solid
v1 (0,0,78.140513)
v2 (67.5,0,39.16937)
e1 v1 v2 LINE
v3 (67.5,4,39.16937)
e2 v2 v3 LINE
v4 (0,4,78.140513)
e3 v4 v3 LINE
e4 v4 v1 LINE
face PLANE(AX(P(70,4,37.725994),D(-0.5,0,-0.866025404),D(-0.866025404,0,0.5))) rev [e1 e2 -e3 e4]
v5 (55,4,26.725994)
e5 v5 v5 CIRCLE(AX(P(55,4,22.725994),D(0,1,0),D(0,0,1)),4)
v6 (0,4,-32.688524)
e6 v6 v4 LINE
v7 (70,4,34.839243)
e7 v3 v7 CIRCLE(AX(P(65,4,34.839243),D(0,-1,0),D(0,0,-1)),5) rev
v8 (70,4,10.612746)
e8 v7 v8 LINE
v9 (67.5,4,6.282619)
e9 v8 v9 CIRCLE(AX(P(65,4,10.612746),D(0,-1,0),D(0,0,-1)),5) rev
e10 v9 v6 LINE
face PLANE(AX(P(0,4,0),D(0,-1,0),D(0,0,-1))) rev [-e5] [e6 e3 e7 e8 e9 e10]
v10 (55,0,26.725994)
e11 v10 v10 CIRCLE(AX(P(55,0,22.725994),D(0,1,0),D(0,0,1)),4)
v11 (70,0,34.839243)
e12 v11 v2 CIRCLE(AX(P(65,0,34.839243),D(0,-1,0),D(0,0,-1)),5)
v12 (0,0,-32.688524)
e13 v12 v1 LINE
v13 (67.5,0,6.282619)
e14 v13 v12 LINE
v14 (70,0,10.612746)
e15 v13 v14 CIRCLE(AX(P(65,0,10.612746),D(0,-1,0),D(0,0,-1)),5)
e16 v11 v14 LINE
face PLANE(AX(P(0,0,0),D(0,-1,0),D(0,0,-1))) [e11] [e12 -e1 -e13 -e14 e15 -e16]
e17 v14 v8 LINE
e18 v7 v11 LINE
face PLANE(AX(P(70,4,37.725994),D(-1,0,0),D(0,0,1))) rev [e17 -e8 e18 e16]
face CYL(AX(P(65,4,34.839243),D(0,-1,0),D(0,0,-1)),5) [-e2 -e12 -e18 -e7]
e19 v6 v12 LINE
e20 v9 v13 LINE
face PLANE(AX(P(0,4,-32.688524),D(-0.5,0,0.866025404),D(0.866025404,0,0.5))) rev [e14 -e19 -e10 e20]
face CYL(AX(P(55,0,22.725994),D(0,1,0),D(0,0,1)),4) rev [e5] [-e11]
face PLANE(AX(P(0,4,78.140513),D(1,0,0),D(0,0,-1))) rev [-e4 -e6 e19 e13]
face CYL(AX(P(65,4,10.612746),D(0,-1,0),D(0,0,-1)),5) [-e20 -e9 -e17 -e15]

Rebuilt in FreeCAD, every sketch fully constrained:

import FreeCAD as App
import Part
import Sketcher

V = App.Vector
Q = App.Units.Quantity


def edges_at(feature, points):
    """Names of the edges that pass closest to the given points."""
    edges = feature.Shape.Edges
    near = lambda p: min(range(len(edges)), key=lambda i: edges[i].distToShape(Part.Vertex(*p))[0])
    return sorted({f"Edge{near(p) + 1}" for p in points})

doc = App.newDocument("Part")
body = doc.addObject("PartDesign::Body", "Body")

# Sketch on XZ plane
sketch1 = body.newObject("Sketcher::SketchObject", "Sketch")
sketch1.AttachmentSupport = (doc.getObject("XZ_Plane"), [""])
sketch1.MapMode = "FlatFace"
sketch1.addGeometry(Part.LineSegment(V(70, 38, 0), V(70, 8, 0)), False)
sketch1.addGeometry(Part.LineSegment(V(70, 8, 0), V(0, -33, 0)), False)
sketch1.addGeometry(Part.LineSegment(V(0, -33, 0), V(0, 78, 0)), False)
sketch1.addGeometry(Part.LineSegment(V(0, 78, 0), V(70, 38, 0)), False)
sketch1.addConstraint(Sketcher.Constraint("Coincident", 0, 2, 1, 1))
sketch1.addConstraint(Sketcher.Constraint("Coincident", 1, 2, 2, 1))
sketch1.addConstraint(Sketcher.Constraint("Coincident", 2, 2, 3, 1))
sketch1.addConstraint(Sketcher.Constraint("Coincident", 3, 2, 0, 1))
sketch1.addConstraint(Sketcher.Constraint("Vertical", 0))
sketch1.addConstraint(Sketcher.Constraint("Vertical", 2))
sketch1.addConstraint(Sketcher.Constraint("PointOnObject", 1, 2, -2))
sketch1.addConstraint(Sketcher.Constraint("Equal", 1, 3))
sketch1.addConstraint(Sketcher.Constraint("DistanceY", 0, 2, 0, 1, 30.0))
sketch1.addConstraint(Sketcher.Constraint("Angle", 1, Q("-150 deg")))
sketch1.addConstraint(Sketcher.Constraint("DistanceX", -1, 1, 0, 2, 70.0))
sketch1.addConstraint(Sketcher.Constraint("DistanceY", -1, 1, 0, 2, 7.725994))
pad1 = body.newObject("PartDesign::Pad", "Pad")
pad1.Profile = sketch1
pad1.Length = 4
pad1.Reversed = True

# Sketch on XZ plane
sketch2 = body.newObject("Sketcher::SketchObject", "Sketch001")
sketch2.AttachmentSupport = (doc.getObject("XZ_Plane"), [""])
sketch2.MapMode = "FlatFace"
sketch2.AttachmentOffset = App.Placement(V(0, 0, -4), App.Rotation())
sketch2.addGeometry(Part.Circle(V(55, 22.7, 0), V(0, 0, 1), 4), False)
sketch2.addConstraint(Sketcher.Constraint("Diameter", 0, 8.0))
sketch2.addConstraint(Sketcher.Constraint("DistanceX", -1, 1, 0, 3, 55.0))
sketch2.addConstraint(Sketcher.Constraint("DistanceY", -1, 1, 0, 3, 22.725994))
pocket1 = body.newObject("PartDesign::Pocket", "Pocket")
pocket1.Profile = sketch2
pocket1.Type = "ThroughAll"
pocket1.Reversed = True
doc.recompute()

fillet = body.newObject("PartDesign::Fillet", "Fillet")
fillet.Base = (pocket1, edges_at(pocket1, [(70, 2, 7.726), (70, 2, 37.726)]))
fillet.Radius = 5

doc.recompute()
